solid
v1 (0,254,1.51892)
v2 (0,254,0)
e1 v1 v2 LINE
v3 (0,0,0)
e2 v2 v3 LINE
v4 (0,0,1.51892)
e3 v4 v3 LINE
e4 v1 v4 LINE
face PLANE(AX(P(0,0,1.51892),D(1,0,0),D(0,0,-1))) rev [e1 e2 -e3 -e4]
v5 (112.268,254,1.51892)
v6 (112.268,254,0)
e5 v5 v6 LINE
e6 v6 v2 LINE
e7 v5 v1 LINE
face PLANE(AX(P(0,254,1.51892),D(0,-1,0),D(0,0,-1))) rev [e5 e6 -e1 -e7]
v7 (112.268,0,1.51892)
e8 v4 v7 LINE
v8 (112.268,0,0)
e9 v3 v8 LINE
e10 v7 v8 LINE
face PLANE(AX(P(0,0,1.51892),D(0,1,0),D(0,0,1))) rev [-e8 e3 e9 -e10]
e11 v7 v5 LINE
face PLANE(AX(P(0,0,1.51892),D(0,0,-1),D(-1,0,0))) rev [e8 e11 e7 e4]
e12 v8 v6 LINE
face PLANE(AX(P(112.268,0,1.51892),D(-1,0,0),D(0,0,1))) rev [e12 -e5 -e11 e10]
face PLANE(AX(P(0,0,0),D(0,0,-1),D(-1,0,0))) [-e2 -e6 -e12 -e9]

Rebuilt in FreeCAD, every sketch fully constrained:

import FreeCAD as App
import Part
import Sketcher

V = App.Vector
Q = App.Units.Quantity


def add_polygon(sketch, points):
    """Adds a closed chain of lines whose ends are joined by coincident constraints."""
    first, n = sketch.GeometryCount, len(points)
    for a, b in zip(points, points[1:] + points[:1]):
        sketch.addGeometry(Part.LineSegment(App.Vector(*a, 0), App.Vector(*b, 0)), False)
    for i in range(n):
        sketch.addConstraint(Sketcher.Constraint("Coincident", first + i, 2, first + (i + 1) % n, 1))

doc = App.newDocument("Part")
params = doc.addObject("Spreadsheet::Sheet", "Params")
for row, (alias, value) in enumerate([
    ("sketch1_height", "10 in"),
    ("sketch1_width", "4.42 in"),
    ("pad1_length", "0.0598 in"),
], start=1):
    params.set(f"A{row}", alias)
    params.set(f"B{row}", "=" + value)
    params.setAlias(f"B{row}", alias)

body = doc.addObject("PartDesign::Body", "Body")

sketch1 = doc.addObject("Sketcher::SketchObject", "Sketch")
body.addObject(sketch1)
sketch1.AttachmentSupport = (doc.XY_Plane, [""])
sketch1.MapMode = "FlatFace"
add_polygon(sketch1, [(0, 254), (0, 0), (112, 0), (112, 254)])
sketch1.addConstraint([
    Sketcher.Constraint("Vertical", 0),
    Sketcher.Constraint("Horizontal", 1),
    Sketcher.Constraint("Vertical", 2),
    Sketcher.Constraint("Horizontal", 3),
    Sketcher.Constraint("Coincident", 0, 2, -1, 1),
    Sketcher.Constraint("DistanceY", 0, 2, 0, 1, Q("10 in")),
    Sketcher.Constraint("DistanceX", 1, 1, 1, 2, Q("4.42 in")),
])
sketch1.setExpression("Constraints[9]", "Params.sketch1_height")
sketch1.setExpression("Constraints[10]", "Params.sketch1_width")
pad1 = doc.addObject("PartDesign::Pad", "Pad")
body.addObject(pad1)
pad1.Profile = sketch1
pad1.setExpression("Length", "Params.pad1_length")

doc.recompute()
